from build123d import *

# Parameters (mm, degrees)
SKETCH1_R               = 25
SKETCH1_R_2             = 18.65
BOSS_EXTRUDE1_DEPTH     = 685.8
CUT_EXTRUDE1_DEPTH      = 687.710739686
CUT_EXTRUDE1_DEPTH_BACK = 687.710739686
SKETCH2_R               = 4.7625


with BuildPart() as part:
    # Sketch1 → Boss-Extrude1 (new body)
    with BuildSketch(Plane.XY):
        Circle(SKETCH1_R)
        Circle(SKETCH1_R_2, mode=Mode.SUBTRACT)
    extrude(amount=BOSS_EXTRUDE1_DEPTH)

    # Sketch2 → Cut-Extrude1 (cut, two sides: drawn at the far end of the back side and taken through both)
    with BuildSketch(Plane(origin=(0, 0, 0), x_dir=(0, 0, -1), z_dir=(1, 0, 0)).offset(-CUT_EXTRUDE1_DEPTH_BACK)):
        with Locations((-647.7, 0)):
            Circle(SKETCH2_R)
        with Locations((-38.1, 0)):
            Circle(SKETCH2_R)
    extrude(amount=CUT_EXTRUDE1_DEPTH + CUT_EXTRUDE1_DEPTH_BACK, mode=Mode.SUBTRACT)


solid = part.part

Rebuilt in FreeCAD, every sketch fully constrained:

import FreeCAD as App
import Part
import Sketcher
from FreeCAD import Vector

doc = App.newDocument("Part")
body = doc.addObject("PartDesign::Body", "Body")

# Sketch on XY plane
sketch1 = body.newObject("Sketcher::SketchObject", "Sketch")
sketch1.AttachmentSupport = (doc.getObject("XY_Plane"), [""])
sketch1.MapMode = "FlatFace"
sketch1.addGeometry([
    Part.Circle(Vector(0, 0, 0), Vector(0, 0, 1), 25),
    Part.Circle(Vector(0, 0, 0), Vector(0, 0, 1), 18.65),
], False)
sketch1.addConstraint([
    Sketcher.Constraint("Coincident", 0, 3, -1, 1),
    Sketcher.Constraint("Coincident", 1, 3, -1, 1),
    Sketcher.Constraint("Diameter", 0, 50.0),
    Sketcher.Constraint("Diameter", 1, 37.3),
])
pad1 = body.newObject("PartDesign::Pad", "Pad")
pad1.Profile = sketch1
pad1.Length = 685.8

# Sketch on YZ plane
sketch2 = body.newObject("Sketcher::SketchObject", "Sketch001")
sketch2.AttachmentSupport = (doc.getObject("YZ_Plane"), [""])
sketch2.MapMode = "FlatFace"
sketch2.addGeometry([
    Part.Circle(Vector(0, 647.7, 0), Vector(0, 0, 1), 4.7625),
    Part.Circle(Vector(0, 38.1, 0), Vector(0, 0, 1), 4.7625),
], False)
sketch2.addConstraint([
    Sketcher.Constraint("Equal", 0, 1),
    Sketcher.Constraint("PointOnObject", 0, 3, -2),
    Sketcher.Constraint("PointOnObject", 1, 3, -2),
    Sketcher.Constraint("Diameter", 0, 9.525),
    Sketcher.Constraint("DistanceY", -1, 1, 0, 3, 647.7),
    Sketcher.Constraint("DistanceY", -1, 1, 1, 3, 38.1),
])
pocket1 = body.newObject("PartDesign::Pocket", "Pocket")
pocket1.Profile = sketch2
pocket1.Type = "ThroughAll"
pocket1.Midplane = True

doc.recompute()
